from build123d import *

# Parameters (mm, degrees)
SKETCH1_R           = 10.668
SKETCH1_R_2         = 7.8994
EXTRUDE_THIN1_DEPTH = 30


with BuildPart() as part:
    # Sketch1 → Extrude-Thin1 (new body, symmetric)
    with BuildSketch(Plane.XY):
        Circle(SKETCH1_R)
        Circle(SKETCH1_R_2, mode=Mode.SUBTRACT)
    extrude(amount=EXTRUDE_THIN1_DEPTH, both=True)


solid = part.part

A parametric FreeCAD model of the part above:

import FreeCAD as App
import Part
import Sketcher
Q = App.Units.Quantity

doc = App.newDocument("Part")
body = doc.addObject("PartDesign::Body", "Body")

# Sketch on XY plane
sketch1 = body.newObject("Sketcher::SketchObject", "Sketch")
sketch1.AttachmentSupport = (doc.getObject("XY_Plane"), [""])
sketch1.MapMode = "FlatFace"
sketch1.addGeometry([
    Part.Circle(App.Vector(0, 0, 0), App.Vector(0, 0, 1), 10.668),
    Part.Circle(App.Vector(0, 0, 0), App.Vector(0, 0, 1), 7.8994),
], False)
sketch1.addConstraint([
    Sketcher.Constraint("Coincident", 0, 3, -1, 1),
    Sketcher.Constraint("Coincident", 1, 3, -1, 1),
    Sketcher.Constraint("Diameter", 0, Q("0.84 in")),
    Sketcher.Constraint("Diameter", 1, Q("0.622 in")),
])
pad1 = body.newObject("PartDesign::Pad", "Pad")
pad1.Profile = sketch1
pad1.Length = 60
pad1.Midplane = True

doc.recompute()
